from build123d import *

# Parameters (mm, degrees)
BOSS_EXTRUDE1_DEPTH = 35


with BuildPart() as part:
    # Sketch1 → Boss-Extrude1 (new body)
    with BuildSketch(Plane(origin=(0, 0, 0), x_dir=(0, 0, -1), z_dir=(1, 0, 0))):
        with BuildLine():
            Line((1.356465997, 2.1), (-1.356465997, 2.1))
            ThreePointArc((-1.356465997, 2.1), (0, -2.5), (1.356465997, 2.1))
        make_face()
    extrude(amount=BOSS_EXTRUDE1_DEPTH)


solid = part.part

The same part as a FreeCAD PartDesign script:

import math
import FreeCAD as App
import Part
import Sketcher
Q = App.Units.Quantity

doc = App.newDocument("Part")
body = doc.addObject("PartDesign::Body", "Body")

# Sketch on YZ plane
sketch1 = doc.addObject("Sketcher::SketchObject", "Sketch")
body.addObject(sketch1)
sketch1.AttachmentSupport = (doc.YZ_Plane, [""])
sketch1.MapMode = "FlatFace"
sketch1.addGeometry(Part.LineSegment(App.Vector(2.1, -1.356466, 0), App.Vector(2.1, 1.356466, 0)), False)
sketch1.addGeometry(Part.ArcOfCircle(Part.Circle(App.Vector(0, 0, 0), App.Vector(0, 0, 1), 2.5), math.radians(32.85988), math.radians(327.14012)), False)
sketch1.addConstraint(Sketcher.Constraint("Coincident", 0, 1, 1, 2))
sketch1.addConstraint(Sketcher.Constraint("Coincident", 1, 1, 0, 2))
sketch1.addConstraint(Sketcher.Constraint("Vertical", 0))
sketch1.addConstraint(Sketcher.Constraint("Coincident", 1, 3, -1, 1))
sketch1.addConstraint(Sketcher.Constraint("Radius", 1, Q("2.5 mm")))
sketch1.addConstraint(Sketcher.Constraint("DistanceX", -1, 1, 0, 1, Q("2.1 mm")))
pad1 = doc.addObject("PartDesign::Pad", "Pad")
body.addObject(pad1)
pad1.Profile = sketch1
pad1.Length = 35

doc.recompute()
